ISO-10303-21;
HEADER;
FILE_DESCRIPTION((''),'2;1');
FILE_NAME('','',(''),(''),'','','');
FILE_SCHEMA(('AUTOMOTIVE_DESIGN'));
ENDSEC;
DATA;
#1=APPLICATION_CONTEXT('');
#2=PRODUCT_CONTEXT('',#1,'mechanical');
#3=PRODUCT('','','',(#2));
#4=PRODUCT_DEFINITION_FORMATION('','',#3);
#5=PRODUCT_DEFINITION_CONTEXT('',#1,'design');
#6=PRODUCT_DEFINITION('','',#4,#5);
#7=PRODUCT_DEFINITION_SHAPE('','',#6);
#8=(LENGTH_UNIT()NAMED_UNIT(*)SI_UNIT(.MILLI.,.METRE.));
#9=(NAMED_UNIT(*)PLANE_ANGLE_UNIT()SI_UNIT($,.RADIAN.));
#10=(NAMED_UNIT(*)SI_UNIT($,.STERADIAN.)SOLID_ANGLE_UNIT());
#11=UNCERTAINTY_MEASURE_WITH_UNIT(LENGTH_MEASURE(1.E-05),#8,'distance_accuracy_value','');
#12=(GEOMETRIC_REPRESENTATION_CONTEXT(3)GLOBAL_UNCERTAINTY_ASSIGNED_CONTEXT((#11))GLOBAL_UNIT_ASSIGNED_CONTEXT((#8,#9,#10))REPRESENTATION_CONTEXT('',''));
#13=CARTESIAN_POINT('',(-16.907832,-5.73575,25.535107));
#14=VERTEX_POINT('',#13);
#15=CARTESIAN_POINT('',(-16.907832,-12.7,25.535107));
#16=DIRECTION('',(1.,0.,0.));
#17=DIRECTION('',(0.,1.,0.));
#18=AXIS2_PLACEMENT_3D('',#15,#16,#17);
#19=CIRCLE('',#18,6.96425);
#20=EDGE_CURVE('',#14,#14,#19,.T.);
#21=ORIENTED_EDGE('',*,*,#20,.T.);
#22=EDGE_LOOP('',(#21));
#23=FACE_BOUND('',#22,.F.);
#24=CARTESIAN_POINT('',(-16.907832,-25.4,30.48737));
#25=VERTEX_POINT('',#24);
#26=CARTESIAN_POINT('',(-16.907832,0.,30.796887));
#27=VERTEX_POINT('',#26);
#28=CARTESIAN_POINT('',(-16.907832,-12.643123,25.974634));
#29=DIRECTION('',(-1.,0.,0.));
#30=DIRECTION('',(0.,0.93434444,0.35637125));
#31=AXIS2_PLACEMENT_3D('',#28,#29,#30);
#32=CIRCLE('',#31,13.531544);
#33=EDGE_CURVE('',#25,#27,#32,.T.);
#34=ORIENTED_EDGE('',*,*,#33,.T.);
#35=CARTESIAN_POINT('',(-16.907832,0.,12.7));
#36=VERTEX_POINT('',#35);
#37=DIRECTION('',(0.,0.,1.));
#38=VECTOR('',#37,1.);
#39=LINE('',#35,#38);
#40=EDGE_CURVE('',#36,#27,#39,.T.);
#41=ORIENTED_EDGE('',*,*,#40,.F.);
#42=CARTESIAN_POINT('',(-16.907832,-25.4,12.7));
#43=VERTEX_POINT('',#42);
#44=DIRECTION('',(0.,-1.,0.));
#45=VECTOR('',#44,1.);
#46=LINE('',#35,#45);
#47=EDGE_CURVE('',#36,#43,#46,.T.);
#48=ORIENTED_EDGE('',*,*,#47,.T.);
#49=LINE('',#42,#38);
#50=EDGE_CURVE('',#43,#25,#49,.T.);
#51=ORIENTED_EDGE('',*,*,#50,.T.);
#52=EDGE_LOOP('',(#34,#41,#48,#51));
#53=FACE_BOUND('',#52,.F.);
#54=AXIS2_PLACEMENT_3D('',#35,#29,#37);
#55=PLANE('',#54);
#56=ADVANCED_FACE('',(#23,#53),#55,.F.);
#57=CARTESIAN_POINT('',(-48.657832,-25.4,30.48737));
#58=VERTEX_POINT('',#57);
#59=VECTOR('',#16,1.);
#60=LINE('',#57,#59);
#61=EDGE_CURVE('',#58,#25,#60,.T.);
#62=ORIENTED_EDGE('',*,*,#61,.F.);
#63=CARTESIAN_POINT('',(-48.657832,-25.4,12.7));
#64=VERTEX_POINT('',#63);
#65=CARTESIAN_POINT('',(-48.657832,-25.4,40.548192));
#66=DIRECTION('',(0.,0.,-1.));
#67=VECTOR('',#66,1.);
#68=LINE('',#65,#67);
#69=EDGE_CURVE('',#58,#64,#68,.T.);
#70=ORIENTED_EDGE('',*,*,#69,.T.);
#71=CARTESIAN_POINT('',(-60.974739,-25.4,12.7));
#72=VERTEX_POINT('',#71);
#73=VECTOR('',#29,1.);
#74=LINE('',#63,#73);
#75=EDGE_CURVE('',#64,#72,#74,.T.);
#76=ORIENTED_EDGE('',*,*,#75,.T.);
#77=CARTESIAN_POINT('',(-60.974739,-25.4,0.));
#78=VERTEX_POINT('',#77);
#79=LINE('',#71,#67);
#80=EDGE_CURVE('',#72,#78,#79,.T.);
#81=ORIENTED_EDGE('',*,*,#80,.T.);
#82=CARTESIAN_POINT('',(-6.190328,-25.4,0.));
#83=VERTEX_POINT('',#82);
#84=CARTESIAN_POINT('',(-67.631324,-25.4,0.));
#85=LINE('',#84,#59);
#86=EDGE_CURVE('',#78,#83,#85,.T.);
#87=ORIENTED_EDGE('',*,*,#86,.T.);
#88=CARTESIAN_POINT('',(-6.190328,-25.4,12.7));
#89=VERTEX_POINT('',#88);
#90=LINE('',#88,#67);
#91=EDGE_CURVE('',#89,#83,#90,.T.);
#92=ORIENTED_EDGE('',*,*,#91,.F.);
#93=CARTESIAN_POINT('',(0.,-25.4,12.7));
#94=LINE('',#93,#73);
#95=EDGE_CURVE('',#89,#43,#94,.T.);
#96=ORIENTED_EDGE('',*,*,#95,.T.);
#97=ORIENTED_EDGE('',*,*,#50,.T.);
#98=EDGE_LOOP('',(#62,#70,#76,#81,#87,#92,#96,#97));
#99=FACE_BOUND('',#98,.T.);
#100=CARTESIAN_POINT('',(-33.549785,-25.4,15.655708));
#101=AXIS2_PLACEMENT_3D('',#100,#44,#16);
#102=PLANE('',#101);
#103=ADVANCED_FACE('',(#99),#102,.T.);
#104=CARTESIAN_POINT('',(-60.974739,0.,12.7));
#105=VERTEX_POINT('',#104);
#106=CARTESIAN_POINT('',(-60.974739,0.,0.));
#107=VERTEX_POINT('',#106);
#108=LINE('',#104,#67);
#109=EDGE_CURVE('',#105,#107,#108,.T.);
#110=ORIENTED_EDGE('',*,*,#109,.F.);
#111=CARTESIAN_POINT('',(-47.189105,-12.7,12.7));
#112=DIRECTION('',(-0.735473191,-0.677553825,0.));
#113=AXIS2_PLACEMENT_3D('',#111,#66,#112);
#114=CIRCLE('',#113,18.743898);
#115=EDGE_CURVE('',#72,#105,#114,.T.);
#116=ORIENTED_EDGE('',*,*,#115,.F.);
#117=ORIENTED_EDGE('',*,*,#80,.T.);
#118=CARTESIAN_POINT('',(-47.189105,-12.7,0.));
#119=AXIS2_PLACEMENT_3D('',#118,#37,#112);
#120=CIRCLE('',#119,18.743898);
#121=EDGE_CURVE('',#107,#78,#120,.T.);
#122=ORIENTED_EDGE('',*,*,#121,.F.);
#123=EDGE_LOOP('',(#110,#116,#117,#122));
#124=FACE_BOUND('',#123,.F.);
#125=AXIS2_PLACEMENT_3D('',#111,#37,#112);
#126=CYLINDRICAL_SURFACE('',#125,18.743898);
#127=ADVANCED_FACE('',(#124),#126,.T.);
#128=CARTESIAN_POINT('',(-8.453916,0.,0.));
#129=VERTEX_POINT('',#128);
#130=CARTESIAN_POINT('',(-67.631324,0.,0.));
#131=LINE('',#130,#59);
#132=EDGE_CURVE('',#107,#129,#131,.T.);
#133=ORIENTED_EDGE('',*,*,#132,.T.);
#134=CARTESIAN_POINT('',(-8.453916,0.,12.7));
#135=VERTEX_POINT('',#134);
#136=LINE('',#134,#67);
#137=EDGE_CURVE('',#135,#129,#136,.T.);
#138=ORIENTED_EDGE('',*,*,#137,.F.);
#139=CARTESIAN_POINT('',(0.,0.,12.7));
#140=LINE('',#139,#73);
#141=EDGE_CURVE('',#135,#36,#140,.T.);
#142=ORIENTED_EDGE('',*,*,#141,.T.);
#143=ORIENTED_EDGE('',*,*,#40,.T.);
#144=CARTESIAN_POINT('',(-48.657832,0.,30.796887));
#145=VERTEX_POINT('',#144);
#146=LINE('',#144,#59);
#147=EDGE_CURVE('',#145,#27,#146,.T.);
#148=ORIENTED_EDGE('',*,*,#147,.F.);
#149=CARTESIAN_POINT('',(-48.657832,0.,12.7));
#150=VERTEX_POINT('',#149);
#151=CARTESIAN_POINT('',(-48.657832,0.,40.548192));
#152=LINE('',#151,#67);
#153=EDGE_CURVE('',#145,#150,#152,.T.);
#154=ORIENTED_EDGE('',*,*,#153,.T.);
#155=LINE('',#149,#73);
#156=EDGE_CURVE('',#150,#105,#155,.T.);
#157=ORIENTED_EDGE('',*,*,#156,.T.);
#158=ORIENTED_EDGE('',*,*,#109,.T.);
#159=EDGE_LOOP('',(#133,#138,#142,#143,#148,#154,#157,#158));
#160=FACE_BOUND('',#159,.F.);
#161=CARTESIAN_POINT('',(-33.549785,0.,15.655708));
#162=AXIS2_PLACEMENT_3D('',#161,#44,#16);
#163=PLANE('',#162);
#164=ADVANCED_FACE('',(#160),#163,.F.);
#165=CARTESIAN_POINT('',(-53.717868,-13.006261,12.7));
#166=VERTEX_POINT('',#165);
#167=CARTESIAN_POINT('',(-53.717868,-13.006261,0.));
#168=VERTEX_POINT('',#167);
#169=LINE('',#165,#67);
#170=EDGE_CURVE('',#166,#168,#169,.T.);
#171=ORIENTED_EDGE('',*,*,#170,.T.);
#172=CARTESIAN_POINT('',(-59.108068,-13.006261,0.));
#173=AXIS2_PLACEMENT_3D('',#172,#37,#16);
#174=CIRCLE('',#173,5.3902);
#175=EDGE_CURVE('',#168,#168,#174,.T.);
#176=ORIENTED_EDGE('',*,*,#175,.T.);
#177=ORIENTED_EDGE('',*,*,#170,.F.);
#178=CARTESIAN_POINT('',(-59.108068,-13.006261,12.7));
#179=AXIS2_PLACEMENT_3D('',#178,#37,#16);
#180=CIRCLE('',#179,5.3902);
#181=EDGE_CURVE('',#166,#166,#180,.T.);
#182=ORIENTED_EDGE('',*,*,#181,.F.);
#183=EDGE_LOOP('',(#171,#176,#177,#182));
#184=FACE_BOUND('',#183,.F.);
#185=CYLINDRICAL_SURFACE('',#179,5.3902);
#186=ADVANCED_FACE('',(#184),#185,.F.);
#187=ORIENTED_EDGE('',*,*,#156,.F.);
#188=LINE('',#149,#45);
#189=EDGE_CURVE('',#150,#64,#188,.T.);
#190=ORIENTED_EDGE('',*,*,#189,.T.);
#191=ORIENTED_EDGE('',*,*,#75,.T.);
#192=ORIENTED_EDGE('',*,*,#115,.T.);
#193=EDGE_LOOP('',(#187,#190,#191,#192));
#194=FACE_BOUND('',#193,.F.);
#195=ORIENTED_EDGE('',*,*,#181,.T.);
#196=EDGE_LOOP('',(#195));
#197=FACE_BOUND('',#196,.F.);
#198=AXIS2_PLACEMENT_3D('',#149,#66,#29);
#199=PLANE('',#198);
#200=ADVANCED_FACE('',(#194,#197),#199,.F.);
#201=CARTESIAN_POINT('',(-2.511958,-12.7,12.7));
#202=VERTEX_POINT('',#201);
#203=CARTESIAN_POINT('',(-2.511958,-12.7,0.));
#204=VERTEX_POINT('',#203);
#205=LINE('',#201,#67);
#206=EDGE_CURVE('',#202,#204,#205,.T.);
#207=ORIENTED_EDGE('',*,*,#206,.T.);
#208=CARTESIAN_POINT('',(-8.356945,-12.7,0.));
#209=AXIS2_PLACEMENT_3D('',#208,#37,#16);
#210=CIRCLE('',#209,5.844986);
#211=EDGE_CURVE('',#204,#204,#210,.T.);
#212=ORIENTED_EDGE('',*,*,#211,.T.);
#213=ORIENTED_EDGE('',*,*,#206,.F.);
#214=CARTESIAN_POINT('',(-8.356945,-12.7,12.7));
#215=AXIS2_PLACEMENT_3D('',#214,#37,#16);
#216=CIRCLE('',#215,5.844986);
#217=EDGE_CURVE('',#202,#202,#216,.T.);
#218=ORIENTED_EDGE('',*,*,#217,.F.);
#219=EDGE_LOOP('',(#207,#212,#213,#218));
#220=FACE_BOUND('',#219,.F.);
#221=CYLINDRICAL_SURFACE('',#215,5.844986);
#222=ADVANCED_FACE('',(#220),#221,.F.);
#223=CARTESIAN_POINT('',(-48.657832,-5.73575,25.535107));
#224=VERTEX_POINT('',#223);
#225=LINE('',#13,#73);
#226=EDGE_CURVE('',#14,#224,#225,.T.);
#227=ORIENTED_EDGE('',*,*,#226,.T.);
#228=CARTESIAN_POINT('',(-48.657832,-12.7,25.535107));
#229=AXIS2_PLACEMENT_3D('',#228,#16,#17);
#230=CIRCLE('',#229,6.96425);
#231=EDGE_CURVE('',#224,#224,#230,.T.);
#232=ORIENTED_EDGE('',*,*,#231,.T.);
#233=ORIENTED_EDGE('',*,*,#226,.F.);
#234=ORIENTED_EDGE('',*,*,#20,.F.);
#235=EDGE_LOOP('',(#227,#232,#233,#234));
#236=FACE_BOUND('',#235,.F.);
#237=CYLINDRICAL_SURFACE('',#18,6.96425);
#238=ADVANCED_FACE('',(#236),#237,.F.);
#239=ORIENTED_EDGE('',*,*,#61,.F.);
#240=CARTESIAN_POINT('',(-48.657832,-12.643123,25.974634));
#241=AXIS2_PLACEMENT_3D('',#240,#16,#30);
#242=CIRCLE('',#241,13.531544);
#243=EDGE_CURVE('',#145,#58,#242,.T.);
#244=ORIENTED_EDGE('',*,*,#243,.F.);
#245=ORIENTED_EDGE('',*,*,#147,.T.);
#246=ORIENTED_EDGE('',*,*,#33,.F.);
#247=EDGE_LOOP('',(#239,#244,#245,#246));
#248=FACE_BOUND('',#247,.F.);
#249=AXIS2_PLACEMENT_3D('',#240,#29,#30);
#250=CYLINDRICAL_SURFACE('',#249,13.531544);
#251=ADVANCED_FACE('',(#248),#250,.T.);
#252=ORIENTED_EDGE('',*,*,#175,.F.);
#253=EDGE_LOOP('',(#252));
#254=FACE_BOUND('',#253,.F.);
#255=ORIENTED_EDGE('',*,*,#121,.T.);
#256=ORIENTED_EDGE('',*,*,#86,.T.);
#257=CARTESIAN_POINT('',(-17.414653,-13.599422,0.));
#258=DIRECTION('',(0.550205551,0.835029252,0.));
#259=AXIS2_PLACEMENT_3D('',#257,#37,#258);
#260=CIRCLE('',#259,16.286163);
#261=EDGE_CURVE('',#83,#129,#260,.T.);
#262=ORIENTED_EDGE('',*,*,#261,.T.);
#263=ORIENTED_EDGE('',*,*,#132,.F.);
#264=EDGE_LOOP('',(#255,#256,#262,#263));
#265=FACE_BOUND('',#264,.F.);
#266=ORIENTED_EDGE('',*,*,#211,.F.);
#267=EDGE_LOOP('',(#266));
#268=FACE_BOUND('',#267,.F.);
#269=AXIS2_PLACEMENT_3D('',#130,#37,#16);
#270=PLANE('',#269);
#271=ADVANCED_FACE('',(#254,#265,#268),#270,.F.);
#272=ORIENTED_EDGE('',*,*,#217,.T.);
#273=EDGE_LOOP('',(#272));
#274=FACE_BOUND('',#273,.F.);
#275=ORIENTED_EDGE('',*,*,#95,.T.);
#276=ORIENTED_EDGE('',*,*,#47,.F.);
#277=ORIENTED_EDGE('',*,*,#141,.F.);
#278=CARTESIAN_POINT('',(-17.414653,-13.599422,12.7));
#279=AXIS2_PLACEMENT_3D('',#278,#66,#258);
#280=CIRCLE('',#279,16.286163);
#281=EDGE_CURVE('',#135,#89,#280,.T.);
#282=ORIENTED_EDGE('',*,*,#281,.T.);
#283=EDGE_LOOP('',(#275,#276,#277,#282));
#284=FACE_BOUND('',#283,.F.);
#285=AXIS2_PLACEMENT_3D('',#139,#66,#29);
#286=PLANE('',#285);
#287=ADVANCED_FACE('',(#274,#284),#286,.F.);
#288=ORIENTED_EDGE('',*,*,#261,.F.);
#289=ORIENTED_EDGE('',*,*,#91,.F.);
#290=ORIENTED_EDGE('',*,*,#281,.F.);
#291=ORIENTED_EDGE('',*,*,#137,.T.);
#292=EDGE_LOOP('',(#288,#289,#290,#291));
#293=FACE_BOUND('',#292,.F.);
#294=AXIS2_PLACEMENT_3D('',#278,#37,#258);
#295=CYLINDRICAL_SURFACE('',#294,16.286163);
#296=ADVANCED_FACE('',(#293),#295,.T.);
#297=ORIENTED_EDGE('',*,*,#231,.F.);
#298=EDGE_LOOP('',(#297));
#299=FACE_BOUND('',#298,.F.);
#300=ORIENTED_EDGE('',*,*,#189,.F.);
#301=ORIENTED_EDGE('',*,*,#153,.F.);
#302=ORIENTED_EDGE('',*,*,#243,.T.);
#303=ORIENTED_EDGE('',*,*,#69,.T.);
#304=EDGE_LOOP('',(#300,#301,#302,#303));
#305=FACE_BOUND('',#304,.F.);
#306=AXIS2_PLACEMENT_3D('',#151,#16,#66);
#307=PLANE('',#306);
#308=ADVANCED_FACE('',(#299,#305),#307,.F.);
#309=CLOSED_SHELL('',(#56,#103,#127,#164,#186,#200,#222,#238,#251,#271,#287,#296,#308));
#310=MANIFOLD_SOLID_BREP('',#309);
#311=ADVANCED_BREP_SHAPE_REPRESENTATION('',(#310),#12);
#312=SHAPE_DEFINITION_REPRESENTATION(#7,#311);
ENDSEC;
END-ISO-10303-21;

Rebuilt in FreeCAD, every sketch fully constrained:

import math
import FreeCAD as App
import Part
import Sketcher

V = App.Vector
Q = App.Units.Quantity


def add_polygon(sketch, points):
    """Adds a closed chain of lines whose ends are joined by coincident constraints."""
    first, n = sketch.GeometryCount, len(points)
    for a, b in zip(points, points[1:] + points[:1]):
        sketch.addGeometry(Part.LineSegment(App.Vector(*a, 0), App.Vector(*b, 0)), False)
    for i in range(n):
        sketch.addConstraint(Sketcher.Constraint("Coincident", first + i, 2, first + (i + 1) % n, 1))

doc = App.newDocument("Part")
params = doc.addObject("Spreadsheet::Sheet", "Params")
for row, (alias, value) in enumerate([
    ("sketch1_height", "0.5 in"),
    ("sketch1_width", "1.25 in"),
    ("pad1_length", "1 in"),
    ("pocket1_length", "1.25 in"),
    ("pocket2_length", "0.5 in"),
    ("pocket3_length", "0.5 in"),
    ("sketch5_height", "1 in"),
    ("pocket4_length", "1 in"),
    ("sketch6_height", "1 in"),
    ("pocket5_length", "1 in"),
    ("sketch7_width", "1 in"),
    ("pocket6_length", "1.5 in"),
], start=1):
    params.set(f"A{row}", alias)
    params.set(f"B{row}", "=" + value)
    params.setAlias(f"B{row}", alias)

body = doc.addObject("PartDesign::Body", "Body")

# Sketch on XZ plane
sketch1 = doc.addObject("Sketcher::SketchObject", "Sketch")
body.addObject(sketch1)
sketch1.AttachmentSupport = (doc.XZ_Plane, [""])
sketch1.MapMode = "FlatFace"
add_polygon(sketch1, [(-67.631324, 0), (0, 0), (0, 12.7), (-16.907832, 12.7), (-16.907832, 40.548192), (-48.657832, 40.548192), (-48.657832, 12.7), (-67.631324, 12.7)])  # lines 0-7
sketch1.addConstraint([
    Sketcher.Constraint("Horizontal", 0),
    Sketcher.Constraint("Vertical", 1),
    Sketcher.Constraint("Horizontal", 2),
    Sketcher.Constraint("Vertical", 3),
    Sketcher.Constraint("Horizontal", 4),
    Sketcher.Constraint("Vertical", 5),
    Sketcher.Constraint("Horizontal", 6),
    Sketcher.Constraint("Vertical", 7),
    Sketcher.Constraint("Coincident", 0, 2, -1, 1),
    Sketcher.Constraint("Horizontal", 2, 2, 5, 2),
    Sketcher.Constraint("DistanceY", 1, 1, 1, 2, Q("0.5 in")),
    Sketcher.Constraint("DistanceX", 4, 2, 4, 1, Q("1.25 in")),
    Sketcher.Constraint("DistanceX", 6, 2, 6, 1, Q("18.973492 mm")),
    Sketcher.Constraint("DistanceY", 3, 1, 3, 2, Q("27.848192 mm")),
    Sketcher.Constraint("DistanceX", 0, 1, 0, 2, Q("67.631324 mm")),
])
sketch1.setExpression("Constraints[18]", "Params.sketch1_height")
sketch1.setExpression("Constraints[19]", "Params.sketch1_width")
pad1 = doc.addObject("PartDesign::Pad", "Pad")
body.addObject(pad1)
pad1.Profile = sketch1
pad1.setExpression("Length", "Params.pad1_length")

# Sketch on YZ plane
sketch2 = doc.addObject("Sketcher::SketchObject", "Sketch001")
body.addObject(sketch2)
sketch2.AttachmentSupport = (doc.YZ_Plane, [""])
sketch2.MapMode = "FlatFace"
sketch2.AttachmentOffset = App.Placement(V(0, 0, -16.907832), App.Rotation())
sketch2.addGeometry(Part.Circle(V(-12.7, 25.535107, 0), V(0, 0, 1), 6.96425), False)
sketch2.addConstraint([
    Sketcher.Constraint("DistanceX", 0, 3, -1, 1, Q("0.5 in")),
    Sketcher.Constraint("Diameter", 0, Q("13.9285 mm")),
    Sketcher.Constraint("DistanceY", -1, 1, 0, 3, Q("25.535107 mm")),
])
pocket1 = doc.addObject("PartDesign::Pocket", "Pocket")
body.addObject(pocket1)
pocket1.Profile = sketch2
pocket1.setExpression("Length", "Params.pocket1_length")

# Sketch on XY plane
sketch3 = doc.addObject("Sketcher::SketchObject", "Sketch002")
body.addObject(sketch3)
sketch3.AttachmentSupport = (doc.XY_Plane, [""])
sketch3.MapMode = "FlatFace"
sketch3.AttachmentOffset = App.Placement(V(0, 0, 0.5 * 25.4), App.Rotation())
sketch3.addGeometry(Part.Circle(V(-59.108068, -13.006261, 0), V(0, 0, 1), 5.3902), False)
sketch3.addConstraint([
    Sketcher.Constraint("Diameter", 0, Q("10.7804 mm")),
    Sketcher.Constraint("DistanceX", 0, 3, -1, 1, Q("59.108068 mm")),
    Sketcher.Constraint("DistanceY", 0, 3, -1, 1, Q("13.006261 mm")),
])
pocket2 = doc.addObject("PartDesign::Pocket", "Pocket001")
body.addObject(pocket2)
pocket2.Profile = sketch3
pocket2.setExpression("Length", "Params.pocket2_length")

# Sketch on XY plane
sketch4 = doc.addObject("Sketcher::SketchObject", "Sketch003")
body.addObject(sketch4)
sketch4.AttachmentSupport = (doc.XY_Plane, [""])
sketch4.MapMode = "FlatFace"
sketch4.AttachmentOffset = App.Placement(V(0, 0, 0.5 * 25.4), App.Rotation())
sketch4.addGeometry(Part.Circle(V(-8.356945, -12.7, 0), V(0, 0, 1), 5.844986), False)
sketch4.addConstraint([
    Sketcher.Constraint("DistanceY", 0, 3, -1, 1, Q("0.5 in")),
    Sketcher.Constraint("Diameter", 0, Q("11.689972 mm")),
    Sketcher.Constraint("DistanceX", 0, 3, -1, 1, Q("8.356945 mm")),
])
pocket3 = doc.addObject("PartDesign::Pocket", "Pocket002")
body.addObject(pocket3)
pocket3.Profile = sketch4
pocket3.setExpression("Length", "Params.pocket3_length")

# Sketch on XY plane
sketch5 = doc.addObject("Sketcher::SketchObject", "Sketch004")
body.addObject(sketch5)
sketch5.AttachmentSupport = (doc.XY_Plane, [""])
sketch5.MapMode = "FlatFace"
sketch5.AttachmentOffset = App.Placement(V(0, 0, 0.5 * 25.4), App.Rotation())
sketch5.addGeometry([
    Part.ArcOfCircle(Part.Circle(V(-17.414653, -13.599422, 0), V(0, 0, 1), 16.286163), math.radians(-46.433663), math.radians(56.618884)),
    Part.LineSegment(V(-6.190328, -25.4, 0), V(0, -25.4, 0)),
    Part.LineSegment(V(0, -25.4, 0), V(0, 0, 0)),
    Part.LineSegment(V(0, 0, 0), V(-8.453916, 0, 0)),
], False)
sketch5.addConstraint([
    Sketcher.Constraint("Coincident", 0, 1, 1, 1),
    Sketcher.Constraint("Coincident", 1, 2, 2, 1),
    Sketcher.Constraint("Coincident", 2, 2, 3, 1),
    Sketcher.Constraint("Coincident", 3, 2, 0, 2),
    Sketcher.Constraint("Horizontal", 1),
    Sketcher.Constraint("Vertical", 2),
    Sketcher.Constraint("Horizontal", 3),
    Sketcher.Constraint("Coincident", 2, 2, -1, 1),
    Sketcher.Constraint("DistanceY", 2, 1, 2, 2, Q("1 in")),
    Sketcher.Constraint("Radius", 0, Q("16.286163 mm")),
    Sketcher.Constraint("DistanceX", 1, 1, 1, 2, Q("6.190328 mm")),
    Sketcher.Constraint("DistanceX", 3, 2, 3, 1, Q("8.453916 mm")),
])
sketch5.setExpression("Constraints[8]", "Params.sketch5_height")
pocket4 = doc.addObject("PartDesign::Pocket", "Pocket003")
body.addObject(pocket4)
pocket4.Profile = sketch5
pocket4.setExpression("Length", "Params.pocket4_length")

# Sketch on XY plane
sketch6 = doc.addObject("Sketcher::SketchObject", "Sketch005")
body.addObject(sketch6)
sketch6.AttachmentSupport = (doc.XY_Plane, [""])
sketch6.MapMode = "FlatFace"
sketch6.AttachmentOffset = App.Placement(V(0, 0, 0.5 * 25.4), App.Rotation())
sketch6.addGeometry([
    Part.ArcOfCircle(Part.Circle(V(-47.189105, -12.7, 0), V(0, 0, 1), 18.743898), math.radians(137.347215), math.radians(222.652785)),
    Part.LineSegment(V(-60.974739, 0, 0), V(-67.631324, 0, 0)),
    Part.LineSegment(V(-67.631324, 0, 0), V(-67.631324, -25.4, 0)),
    Part.LineSegment(V(-67.631324, -25.4, 0), V(-60.974739, -25.4, 0)),
], False)
sketch6.addConstraint([
    Sketcher.Constraint("Coincident", 0, 1, 1, 1),
    Sketcher.Constraint("Coincident", 1, 2, 2, 1),
    Sketcher.Constraint("Coincident", 2, 2, 3, 1),
    Sketcher.Constraint("Coincident", 3, 2, 0, 2),
    Sketcher.Constraint("Horizontal", 1),
    Sketcher.Constraint("Vertical", 2),
    Sketcher.Constraint("Horizontal", 3),
    Sketcher.Constraint("PointOnObject", 0, 1, -1),
    Sketcher.Constraint("Vertical", 0, 1, 3, 2),
    Sketcher.Constraint("DistanceY", 2, 2, 2, 1, Q("1 in")),
    Sketcher.Constraint("Radius", 0, Q("18.743898 mm")),
    Sketcher.Constraint("DistanceX", 1, 2, 1, 1, Q("6.656585 mm")),
    Sketcher.Constraint("DistanceX", 0, 1, -1, 1, Q("60.974739 mm")),
])
sketch6.setExpression("Constraints[9]", "Params.sketch6_height")
pocket5 = doc.addObject("PartDesign::Pocket", "Pocket004")
body.addObject(pocket5)
pocket5.Profile = sketch6
pocket5.setExpression("Length", "Params.pocket5_length")

# Sketch on YZ plane
sketch7 = doc.addObject("Sketcher::SketchObject", "Sketch006")
body.addObject(sketch7)
sketch7.AttachmentSupport = (doc.YZ_Plane, [""])
sketch7.MapMode = "FlatFace"
sketch7.AttachmentOffset = App.Placement(V(0, 0, -48.657832), App.Rotation())
sketch7.addGeometry([
    Part.ArcOfCircle(Part.Circle(V(-12.643123, 25.974634, 0), V(0, 0, 1), 13.531544), math.radians(20.877509), math.radians(160.518804)),
    Part.LineSegment(V(-25.4, 30.48737, 0), V(-25.4, 40.548192, 0)),
    Part.LineSegment(V(-25.4, 40.548192, 0), V(0, 40.548192, 0)),
    Part.LineSegment(V(0, 40.548192, 0), V(0, 30.796887, 0)),
], False)
sketch7.addConstraint([
    Sketcher.Constraint("Coincident", 0, 2, 1, 1),
    Sketcher.Constraint("Coincident", 1, 2, 2, 1),
    Sketcher.Constraint("Coincident", 2, 2, 3, 1),
    Sketcher.Constraint("Coincident", 3, 2, 0, 1),
    Sketcher.Constraint("Vertical", 1),
    Sketcher.Constraint("Horizontal", 2),
    Sketcher.Constraint("Vertical", 3),
    Sketcher.Constraint("PointOnObject", 2, 2, -2),
    Sketcher.Constraint("DistanceX", 2, 1, 2, 2, Q("1 in")),
    Sketcher.Constraint("Radius", 0, Q("13.531544 mm")),
    Sketcher.Constraint("DistanceY", 1, 1, 1, 2, Q("10.060822 mm")),
    Sketcher.Constraint("DistanceY", 3, 2, 3, 1, Q("9.751305 mm")),
    Sketcher.Constraint("DistanceY", -1, 1, 0, 2, Q("30.48737 mm")),
])
sketch7.setExpression("Constraints[8]", "Params.sketch7_width")
pocket6 = doc.addObject("PartDesign::Pocket", "Pocket005")
body.addObject(pocket6)
pocket6.Profile = sketch7
pocket6.setExpression("Length", "Params.pocket6_length")
pocket6.Reversed = True

doc.recompute()
